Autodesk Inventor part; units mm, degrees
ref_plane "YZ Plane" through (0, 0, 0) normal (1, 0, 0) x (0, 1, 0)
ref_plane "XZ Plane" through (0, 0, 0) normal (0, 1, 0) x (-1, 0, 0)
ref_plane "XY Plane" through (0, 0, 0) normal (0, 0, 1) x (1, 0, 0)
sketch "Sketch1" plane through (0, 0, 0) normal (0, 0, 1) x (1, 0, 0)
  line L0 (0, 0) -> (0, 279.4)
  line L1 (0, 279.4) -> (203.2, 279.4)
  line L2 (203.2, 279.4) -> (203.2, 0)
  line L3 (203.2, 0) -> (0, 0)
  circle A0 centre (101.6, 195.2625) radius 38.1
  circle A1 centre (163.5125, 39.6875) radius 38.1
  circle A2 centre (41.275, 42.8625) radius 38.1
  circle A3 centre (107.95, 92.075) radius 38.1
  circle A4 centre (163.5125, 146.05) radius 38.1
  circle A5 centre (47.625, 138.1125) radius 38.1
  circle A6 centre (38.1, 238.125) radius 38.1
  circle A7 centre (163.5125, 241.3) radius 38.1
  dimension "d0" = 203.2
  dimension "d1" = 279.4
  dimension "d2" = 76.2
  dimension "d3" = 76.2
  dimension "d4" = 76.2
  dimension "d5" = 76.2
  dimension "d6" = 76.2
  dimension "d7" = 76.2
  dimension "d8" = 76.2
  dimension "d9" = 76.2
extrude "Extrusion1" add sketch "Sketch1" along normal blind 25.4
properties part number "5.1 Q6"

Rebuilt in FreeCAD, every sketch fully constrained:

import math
import FreeCAD as App
import Part
import Sketcher
from FreeCAD import Vector
Q = App.Units.Quantity


def add_polygon(sketch, points):
    """Adds a closed chain of lines whose ends are joined by coincident constraints."""
    first, n = sketch.GeometryCount, len(points)
    for a, b in zip(points, points[1:] + points[:1]):
        sketch.addGeometry(Part.LineSegment(App.Vector(*a, 0), App.Vector(*b, 0)), False)
    for i in range(n):
        sketch.addConstraint(Sketcher.Constraint("Coincident", first + i, 2, first + (i + 1) % n, 1))

doc = App.newDocument("Part")
body = doc.addObject("PartDesign::Body", "Body")

sketch1 = body.newObject("Sketcher::SketchObject", "Sketch")
sketch1.AttachmentSupport = (doc.getObject("XY_Plane"), [""])
sketch1.MapMode = "FlatFace"
add_polygon(sketch1, [(0, 238), (0, 0), (203, 0), (203, 279), (164, 279), (0, 279)])
sketch1.addGeometry(Part.Circle(Vector(41, 43, 0), Vector(0, 0, 1), 38), False)
sketch1.addGeometry(Part.ArcOfCircle(Part.Circle(Vector(108, 92, 0), Vector(0, 0, 1), 38), math.radians(148), math.radians(497)), False)
sketch1.addGeometry(Part.ArcOfCircle(Part.Circle(Vector(48, 138, 0), Vector(0, 0, 1), 38), math.radians(-32), math.radians(317)), False)
sketch1.addGeometry(Part.Circle(Vector(164, 40, 0), Vector(0, 0, 1), 38), False)
sketch1.addGeometry(Part.Circle(Vector(102, 195, 0), Vector(0, 0, 1), 38), False)
sketch1.addGeometry(Part.Circle(Vector(38, 238, 0), Vector(0, 0, 1), 38), False)
sketch1.addGeometry(Part.Circle(Vector(164, 146, 0), Vector(0, 0, 1), 38), False)
sketch1.addGeometry(Part.Circle(Vector(164, 241, 0), Vector(0, 0, 1), 38), False)
sketch1.addConstraint([
    Sketcher.Constraint("Coincident", 7, 1, 8, 2),
    Sketcher.Constraint("Coincident", 8, 1, 7, 2),
    Sketcher.Constraint("Vertical", 0),
    Sketcher.Constraint("Horizontal", 1),
    Sketcher.Constraint("Vertical", 2),
    Sketcher.Constraint("Horizontal", 3),
    Sketcher.Constraint("Horizontal", 4),
    Sketcher.Constraint("Vertical", 5),
    Sketcher.Constraint("Coincident", 0, 2, -1, 1),
    Sketcher.Constraint("Equal", 6, 7),
    Sketcher.Constraint("Equal", 7, 8),
    Sketcher.Constraint("Equal", 8, 9),
    Sketcher.Constraint("Equal", 9, 10),
    Sketcher.Constraint("Equal", 10, 11),
    Sketcher.Constraint("Equal", 11, 12),
    Sketcher.Constraint("Equal", 12, 13),
    Sketcher.Constraint("Horizontal", 11, 3, 5, 2),
    Sketcher.Constraint("Vertical", 9, 3, 12, 3),
    Sketcher.Constraint("Vertical", 12, 3, 13, 3),
    Sketcher.Constraint("Vertical", 13, 3, 3, 2),
    Sketcher.Constraint("Diameter", 6, Q("3 in")),
    Sketcher.Constraint("DistanceX", 1, 1, 1, 2, Q("8 in")),
    Sketcher.Constraint("DistanceY", 2, 1, 2, 2, Q("11 in")),
    Sketcher.Constraint("DistanceX", -1, 1, 10, 3, Q("4 in")),
    Sketcher.Constraint("DistanceY", 6, 3, 10, 3, Q("6 in")),
    Sketcher.Constraint("DistanceX", -1, 1, 11, 3, Q("1.5 in")),
    Sketcher.Constraint("DistanceY", -1, 1, 13, 3, Q("9.5 in")),
    Sketcher.Constraint("DistanceX", 3, 2, 3, 1, Q("1.5625 in")),
    Sketcher.Constraint("DistanceY", 0, 2, 0, 1, Q("9.375 in")),
    Sketcher.Constraint("DistanceX", -1, 1, 7, 3, Q("4.25 in")),
    Sketcher.Constraint("DistanceY", -1, 1, 12, 3, Q("5.75 in")),
    Sketcher.Constraint("DistanceX", 6, 3, 8, 3, Q("0.25 in")),
    Sketcher.Constraint("DistanceY", 6, 3, 8, 3, Q("3.75 in")),
    Sketcher.Constraint("DistanceY", 7, 3, 11, 3, Q("5.75 in")),
    Sketcher.Constraint("DistanceX", -1, 1, 6, 3, Q("1.625 in")),
    Sketcher.Constraint("DistanceY", -1, 1, 6, 3, Q("1.6875 in")),
    Sketcher.Constraint("DistanceY", -1, 1, 9, 3, Q("1.5625 in")),
])
pad1 = body.newObject("PartDesign::Pad", "Pad")
pad1.Profile = sketch1
pad1.Length = Q("1 in")

doc.recompute()
